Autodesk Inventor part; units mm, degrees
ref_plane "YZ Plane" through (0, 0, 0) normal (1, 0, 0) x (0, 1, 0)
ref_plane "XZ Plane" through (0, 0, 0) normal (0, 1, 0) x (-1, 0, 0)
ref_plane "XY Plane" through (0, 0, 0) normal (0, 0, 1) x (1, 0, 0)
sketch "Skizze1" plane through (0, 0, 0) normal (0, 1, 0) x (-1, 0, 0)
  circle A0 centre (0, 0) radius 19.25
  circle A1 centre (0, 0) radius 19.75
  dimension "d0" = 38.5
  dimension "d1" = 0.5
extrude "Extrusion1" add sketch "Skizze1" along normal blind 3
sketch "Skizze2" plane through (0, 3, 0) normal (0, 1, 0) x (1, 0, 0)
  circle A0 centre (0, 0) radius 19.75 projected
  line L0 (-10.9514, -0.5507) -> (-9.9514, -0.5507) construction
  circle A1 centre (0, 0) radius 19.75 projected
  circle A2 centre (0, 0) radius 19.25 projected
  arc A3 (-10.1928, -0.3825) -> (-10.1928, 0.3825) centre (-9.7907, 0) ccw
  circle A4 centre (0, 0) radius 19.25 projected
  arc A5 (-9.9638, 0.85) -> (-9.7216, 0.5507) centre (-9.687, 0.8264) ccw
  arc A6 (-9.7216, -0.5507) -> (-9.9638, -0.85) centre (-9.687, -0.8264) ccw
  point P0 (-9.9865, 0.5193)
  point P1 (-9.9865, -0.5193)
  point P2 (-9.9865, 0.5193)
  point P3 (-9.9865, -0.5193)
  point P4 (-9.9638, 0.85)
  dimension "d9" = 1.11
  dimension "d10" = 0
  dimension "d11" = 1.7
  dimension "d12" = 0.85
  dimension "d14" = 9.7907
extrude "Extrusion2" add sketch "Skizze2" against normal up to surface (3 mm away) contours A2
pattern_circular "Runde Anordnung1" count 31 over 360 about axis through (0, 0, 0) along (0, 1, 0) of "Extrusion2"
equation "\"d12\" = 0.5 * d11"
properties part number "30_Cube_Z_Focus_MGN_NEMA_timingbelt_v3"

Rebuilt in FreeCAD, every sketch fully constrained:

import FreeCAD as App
import Part
import Sketcher
from FreeCAD import Vector
Q = App.Units.Quantity

doc = App.newDocument("Part")
params = doc.addObject("Spreadsheet::Sheet", "Params")
for row, (alias, value) in enumerate([
    ("sketch1_diameter", "38.5 mm"),
    ("sketch1_diameter2", "39.5 mm"),
    ("pad1_length", "3 mm"),
    ("sketch2_diameter", "38.5 mm"),
    ("pad2_length", "3 mm"),
], start=1):
    params.set(f"A{row}", alias)
    params.set(f"B{row}", "=" + value)
    params.setAlias(f"B{row}", alias)

body = doc.addObject("PartDesign::Body", "Body")

# Sketch on XZ plane
sketch1 = body.newObject("Sketcher::SketchObject", "Sketch")
sketch1.AttachmentSupport = (doc.getObject("XZ_Plane"), [""])
sketch1.MapMode = "FlatFace"
sketch1.addGeometry([
    Part.Circle(Vector(0, 0, 0), Vector(0, 0, 1), 20),
    Part.Circle(Vector(0, 0, 0), Vector(0, 0, 1), 19),
], False)
sketch1.addConstraint([
    Sketcher.Constraint("Coincident", 0, 3, -1, 1),
    Sketcher.Constraint("Coincident", 1, 3, -1, 1),
    Sketcher.Constraint("Diameter", 1, Q("38.5 mm")),
    Sketcher.Constraint("Diameter", 0, Q("39.5 mm")),
])
sketch1.setExpression("Constraints[2]", "Params.sketch1_diameter")
sketch1.setExpression("Constraints[3]", "Params.sketch1_diameter2")
pad1 = body.newObject("PartDesign::Pad", "Pad")
pad1.Profile = sketch1
pad1.setExpression("Length", "Params.pad1_length")
pad1.Reversed = True

# Sketch on XZ plane
sketch2 = body.newObject("Sketcher::SketchObject", "Sketch001")
sketch2.AttachmentSupport = (doc.getObject("XZ_Plane"), [""])
sketch2.MapMode = "FlatFace"
sketch2.AttachmentOffset = App.Placement(Vector(0, 0, -3), App.Rotation())
sketch2.addGeometry(Part.Circle(Vector(0, 0, 0), Vector(0, 0, 1), 19), False)
sketch2.addConstraint([
    Sketcher.Constraint("Coincident", 0, 3, -1, 1),
    Sketcher.Constraint("Diameter", 0, Q("38.5 mm")),
])
sketch2.setExpression("Constraints[1]", "Params.sketch2_diameter")
pad2 = body.newObject("PartDesign::Pad", "Pad001")
pad2.Profile = sketch2
pad2.setExpression("Length", "Params.pad2_length")
doc.recompute()

polarpattern = body.newObject("PartDesign::PolarPattern", "PolarPattern")
polarpattern.Originals = [pad2]
polarpattern.Axis = (doc.getObject("Y_Axis"), [""])
polarpattern.Angle = 360
polarpattern.Occurrences = 31
body.Tip = polarpattern

doc.recompute()
